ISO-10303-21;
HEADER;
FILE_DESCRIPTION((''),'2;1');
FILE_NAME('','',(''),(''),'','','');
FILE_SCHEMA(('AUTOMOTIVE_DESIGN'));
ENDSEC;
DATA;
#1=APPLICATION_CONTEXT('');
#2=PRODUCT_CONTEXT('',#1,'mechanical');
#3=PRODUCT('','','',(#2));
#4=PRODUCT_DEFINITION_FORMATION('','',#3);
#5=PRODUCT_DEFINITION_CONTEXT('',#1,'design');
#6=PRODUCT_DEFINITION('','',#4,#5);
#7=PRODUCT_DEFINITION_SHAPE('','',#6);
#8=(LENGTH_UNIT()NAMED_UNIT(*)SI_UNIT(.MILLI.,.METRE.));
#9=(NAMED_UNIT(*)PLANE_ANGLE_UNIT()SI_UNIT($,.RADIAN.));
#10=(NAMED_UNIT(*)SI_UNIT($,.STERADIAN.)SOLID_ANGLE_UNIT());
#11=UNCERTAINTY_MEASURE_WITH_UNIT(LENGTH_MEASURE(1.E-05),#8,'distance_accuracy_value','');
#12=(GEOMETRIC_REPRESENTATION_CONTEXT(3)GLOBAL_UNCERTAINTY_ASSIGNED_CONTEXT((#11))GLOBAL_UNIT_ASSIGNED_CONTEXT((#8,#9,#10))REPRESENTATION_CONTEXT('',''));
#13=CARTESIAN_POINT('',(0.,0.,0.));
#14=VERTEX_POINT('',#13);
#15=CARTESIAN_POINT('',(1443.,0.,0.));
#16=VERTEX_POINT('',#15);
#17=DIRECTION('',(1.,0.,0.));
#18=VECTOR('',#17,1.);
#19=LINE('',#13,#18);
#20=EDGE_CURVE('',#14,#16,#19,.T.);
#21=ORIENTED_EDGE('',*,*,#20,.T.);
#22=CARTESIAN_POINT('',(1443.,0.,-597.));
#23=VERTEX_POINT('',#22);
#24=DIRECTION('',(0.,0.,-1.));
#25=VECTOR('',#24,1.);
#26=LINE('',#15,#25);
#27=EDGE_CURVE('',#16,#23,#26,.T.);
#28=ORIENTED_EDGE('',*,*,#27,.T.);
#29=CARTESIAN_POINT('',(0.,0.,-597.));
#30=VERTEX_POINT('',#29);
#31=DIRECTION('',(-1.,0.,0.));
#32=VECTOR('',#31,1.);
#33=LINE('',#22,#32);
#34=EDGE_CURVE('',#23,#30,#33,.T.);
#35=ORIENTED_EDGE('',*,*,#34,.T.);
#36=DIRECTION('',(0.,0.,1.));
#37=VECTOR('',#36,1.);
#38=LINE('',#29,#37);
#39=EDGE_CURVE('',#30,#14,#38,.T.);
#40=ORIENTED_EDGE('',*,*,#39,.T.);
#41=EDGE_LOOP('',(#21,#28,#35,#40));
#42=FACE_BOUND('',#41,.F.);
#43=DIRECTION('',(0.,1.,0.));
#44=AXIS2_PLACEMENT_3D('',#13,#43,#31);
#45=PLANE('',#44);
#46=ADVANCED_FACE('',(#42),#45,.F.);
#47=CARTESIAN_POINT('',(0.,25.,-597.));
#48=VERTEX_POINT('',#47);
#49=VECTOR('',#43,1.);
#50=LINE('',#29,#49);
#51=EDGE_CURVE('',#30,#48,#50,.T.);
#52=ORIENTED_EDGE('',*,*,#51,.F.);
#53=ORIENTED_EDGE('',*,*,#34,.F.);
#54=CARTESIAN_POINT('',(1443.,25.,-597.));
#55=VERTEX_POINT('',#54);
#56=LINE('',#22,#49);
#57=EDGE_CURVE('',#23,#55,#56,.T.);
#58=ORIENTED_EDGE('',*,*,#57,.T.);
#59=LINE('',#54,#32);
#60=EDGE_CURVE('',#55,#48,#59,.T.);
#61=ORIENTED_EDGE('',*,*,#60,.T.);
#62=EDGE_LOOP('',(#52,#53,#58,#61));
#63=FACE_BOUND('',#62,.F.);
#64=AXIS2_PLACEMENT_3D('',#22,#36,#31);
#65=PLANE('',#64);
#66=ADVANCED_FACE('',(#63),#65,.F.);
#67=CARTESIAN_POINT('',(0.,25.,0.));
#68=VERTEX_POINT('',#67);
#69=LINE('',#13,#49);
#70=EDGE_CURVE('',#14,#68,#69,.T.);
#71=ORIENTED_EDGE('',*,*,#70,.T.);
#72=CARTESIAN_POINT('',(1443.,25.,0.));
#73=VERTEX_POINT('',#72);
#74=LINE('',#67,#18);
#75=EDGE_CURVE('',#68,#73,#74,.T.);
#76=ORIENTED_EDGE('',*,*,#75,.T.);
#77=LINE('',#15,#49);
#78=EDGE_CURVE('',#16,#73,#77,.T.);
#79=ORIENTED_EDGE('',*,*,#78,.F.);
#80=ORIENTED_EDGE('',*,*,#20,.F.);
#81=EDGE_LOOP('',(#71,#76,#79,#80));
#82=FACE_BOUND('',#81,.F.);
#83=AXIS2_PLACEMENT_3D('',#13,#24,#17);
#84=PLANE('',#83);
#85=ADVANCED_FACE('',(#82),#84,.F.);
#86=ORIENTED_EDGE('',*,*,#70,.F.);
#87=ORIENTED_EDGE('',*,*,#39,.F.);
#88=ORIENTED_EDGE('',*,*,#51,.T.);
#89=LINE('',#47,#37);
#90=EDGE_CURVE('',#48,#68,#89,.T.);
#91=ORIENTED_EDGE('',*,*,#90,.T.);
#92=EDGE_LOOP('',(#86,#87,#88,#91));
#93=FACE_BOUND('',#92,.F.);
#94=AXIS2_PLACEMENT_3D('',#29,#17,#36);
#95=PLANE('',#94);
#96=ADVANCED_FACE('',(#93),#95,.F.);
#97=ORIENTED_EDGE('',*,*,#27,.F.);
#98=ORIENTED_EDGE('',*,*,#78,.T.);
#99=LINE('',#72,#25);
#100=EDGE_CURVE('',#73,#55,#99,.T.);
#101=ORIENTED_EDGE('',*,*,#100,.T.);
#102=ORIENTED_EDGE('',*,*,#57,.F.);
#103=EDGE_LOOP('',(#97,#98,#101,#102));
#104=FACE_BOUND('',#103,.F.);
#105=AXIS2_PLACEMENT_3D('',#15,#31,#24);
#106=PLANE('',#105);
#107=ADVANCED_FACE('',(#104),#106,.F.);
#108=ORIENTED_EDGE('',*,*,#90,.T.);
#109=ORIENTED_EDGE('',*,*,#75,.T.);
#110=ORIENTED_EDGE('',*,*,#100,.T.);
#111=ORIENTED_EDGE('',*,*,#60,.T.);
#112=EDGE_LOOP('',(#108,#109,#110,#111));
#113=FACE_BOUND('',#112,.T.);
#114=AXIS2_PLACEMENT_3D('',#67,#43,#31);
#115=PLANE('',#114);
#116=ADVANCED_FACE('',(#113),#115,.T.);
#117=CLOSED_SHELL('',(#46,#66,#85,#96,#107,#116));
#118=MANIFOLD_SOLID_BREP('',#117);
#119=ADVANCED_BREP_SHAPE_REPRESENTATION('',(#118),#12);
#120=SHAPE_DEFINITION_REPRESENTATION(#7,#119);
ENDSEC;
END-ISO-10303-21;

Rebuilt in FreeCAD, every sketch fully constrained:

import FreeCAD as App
import Part
import Sketcher
from FreeCAD import Vector

doc = App.newDocument("Part")
body = doc.addObject("PartDesign::Body", "Body")

# Sketch on XZ plane
sketch1 = body.newObject("Sketcher::SketchObject", "Sketch")
sketch1.AttachmentSupport = (doc.getObject("XZ_Plane"), [""])
sketch1.MapMode = "FlatFace"
sketch1.addGeometry(Part.LineSegment(Vector(0, -597, 0), Vector(0, 0, 0)), False)
sketch1.addGeometry(Part.LineSegment(Vector(0, 0, 0), Vector(1443, 0, 0)), False)
sketch1.addGeometry(Part.LineSegment(Vector(1443, 0, 0), Vector(1443, -597, 0)), False)
sketch1.addGeometry(Part.LineSegment(Vector(1443, -597, 0), Vector(0, -597, 0)), False)
sketch1.addConstraint(Sketcher.Constraint("Coincident", 0, 2, 1, 1))
sketch1.addConstraint(Sketcher.Constraint("Coincident", 1, 2, 2, 1))
sketch1.addConstraint(Sketcher.Constraint("Coincident", 2, 2, 3, 1))
sketch1.addConstraint(Sketcher.Constraint("Coincident", 3, 2, 0, 1))
sketch1.addConstraint(Sketcher.Constraint("Vertical", 0))
sketch1.addConstraint(Sketcher.Constraint("Horizontal", 1))
sketch1.addConstraint(Sketcher.Constraint("Vertical", 2))
sketch1.addConstraint(Sketcher.Constraint("Horizontal", 3))
sketch1.addConstraint(Sketcher.Constraint("Coincident", 0, 2, -1, 1))
sketch1.addConstraint(Sketcher.Constraint("DistanceX", 1, 1, 1, 2, 1443.0))
sketch1.addConstraint(Sketcher.Constraint("DistanceY", 0, 1, 0, 2, 597.0))
pad1 = body.newObject("PartDesign::Pad", "Pad")
pad1.Profile = sketch1
pad1.Length = 25
pad1.Reversed = True

doc.recompute()
